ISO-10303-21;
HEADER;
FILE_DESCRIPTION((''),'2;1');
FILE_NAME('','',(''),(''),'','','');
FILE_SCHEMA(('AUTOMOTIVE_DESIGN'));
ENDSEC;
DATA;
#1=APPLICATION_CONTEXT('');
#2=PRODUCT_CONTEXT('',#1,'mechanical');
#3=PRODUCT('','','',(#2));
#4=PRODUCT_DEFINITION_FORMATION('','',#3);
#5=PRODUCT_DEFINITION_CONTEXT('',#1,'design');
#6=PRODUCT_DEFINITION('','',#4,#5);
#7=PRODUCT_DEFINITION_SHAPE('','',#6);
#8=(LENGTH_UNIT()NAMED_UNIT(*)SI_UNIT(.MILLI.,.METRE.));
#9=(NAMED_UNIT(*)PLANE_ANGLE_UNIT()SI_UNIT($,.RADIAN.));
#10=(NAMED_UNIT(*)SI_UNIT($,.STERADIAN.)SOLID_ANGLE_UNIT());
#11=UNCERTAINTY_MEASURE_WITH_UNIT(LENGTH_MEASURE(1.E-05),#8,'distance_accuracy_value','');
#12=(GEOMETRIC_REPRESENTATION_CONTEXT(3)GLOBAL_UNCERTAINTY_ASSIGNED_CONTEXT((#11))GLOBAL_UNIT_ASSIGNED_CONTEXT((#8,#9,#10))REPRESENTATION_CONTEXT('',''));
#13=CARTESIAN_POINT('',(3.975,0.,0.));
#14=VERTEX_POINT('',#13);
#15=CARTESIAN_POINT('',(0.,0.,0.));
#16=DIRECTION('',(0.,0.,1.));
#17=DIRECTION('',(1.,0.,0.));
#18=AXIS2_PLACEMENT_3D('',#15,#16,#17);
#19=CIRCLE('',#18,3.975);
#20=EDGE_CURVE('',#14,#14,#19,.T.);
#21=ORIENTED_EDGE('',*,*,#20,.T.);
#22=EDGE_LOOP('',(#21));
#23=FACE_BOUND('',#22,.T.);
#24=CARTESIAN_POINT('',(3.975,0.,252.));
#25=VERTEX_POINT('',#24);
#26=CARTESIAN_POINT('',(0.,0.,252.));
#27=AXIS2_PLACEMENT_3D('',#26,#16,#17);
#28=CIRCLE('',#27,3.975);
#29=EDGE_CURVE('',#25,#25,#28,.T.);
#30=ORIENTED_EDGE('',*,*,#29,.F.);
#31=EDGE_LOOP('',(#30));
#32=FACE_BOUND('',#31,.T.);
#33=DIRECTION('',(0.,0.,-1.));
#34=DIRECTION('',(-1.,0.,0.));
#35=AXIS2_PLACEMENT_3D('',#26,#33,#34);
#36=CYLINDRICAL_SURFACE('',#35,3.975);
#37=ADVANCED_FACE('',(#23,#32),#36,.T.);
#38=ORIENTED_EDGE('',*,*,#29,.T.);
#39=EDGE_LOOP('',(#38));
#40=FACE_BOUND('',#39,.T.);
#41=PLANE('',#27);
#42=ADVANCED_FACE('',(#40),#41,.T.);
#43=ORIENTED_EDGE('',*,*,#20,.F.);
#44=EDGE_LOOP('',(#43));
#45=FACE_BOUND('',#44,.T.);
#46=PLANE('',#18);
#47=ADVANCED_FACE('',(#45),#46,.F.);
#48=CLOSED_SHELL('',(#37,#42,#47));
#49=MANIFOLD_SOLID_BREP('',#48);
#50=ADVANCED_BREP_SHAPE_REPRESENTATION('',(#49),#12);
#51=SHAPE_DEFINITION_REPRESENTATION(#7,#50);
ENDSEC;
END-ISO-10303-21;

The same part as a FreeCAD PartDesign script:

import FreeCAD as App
import Part
import Sketcher

V = App.Vector
Q = App.Units.Quantity

doc = App.newDocument("Part")
body = doc.addObject("PartDesign::Body", "Body")

# Sketch on XY plane
sketch1 = body.newObject("Sketcher::SketchObject", "Sketch")
sketch1.AttachmentSupport = (doc.getObject("XY_Plane"), [""])
sketch1.MapMode = "FlatFace"
sketch1.addGeometry(Part.Circle(V(0, 0, 0), V(0, 0, 1), 3.975), False)
sketch1.addConstraint([
    Sketcher.Constraint("Coincident", 0, 3, -1, 1),
    Sketcher.Constraint("Diameter", 0, Q("7.95 mm")),
])
pad1 = body.newObject("PartDesign::Pad", "Pad")
pad1.Profile = sketch1
pad1.Length = 252

doc.recompute()
